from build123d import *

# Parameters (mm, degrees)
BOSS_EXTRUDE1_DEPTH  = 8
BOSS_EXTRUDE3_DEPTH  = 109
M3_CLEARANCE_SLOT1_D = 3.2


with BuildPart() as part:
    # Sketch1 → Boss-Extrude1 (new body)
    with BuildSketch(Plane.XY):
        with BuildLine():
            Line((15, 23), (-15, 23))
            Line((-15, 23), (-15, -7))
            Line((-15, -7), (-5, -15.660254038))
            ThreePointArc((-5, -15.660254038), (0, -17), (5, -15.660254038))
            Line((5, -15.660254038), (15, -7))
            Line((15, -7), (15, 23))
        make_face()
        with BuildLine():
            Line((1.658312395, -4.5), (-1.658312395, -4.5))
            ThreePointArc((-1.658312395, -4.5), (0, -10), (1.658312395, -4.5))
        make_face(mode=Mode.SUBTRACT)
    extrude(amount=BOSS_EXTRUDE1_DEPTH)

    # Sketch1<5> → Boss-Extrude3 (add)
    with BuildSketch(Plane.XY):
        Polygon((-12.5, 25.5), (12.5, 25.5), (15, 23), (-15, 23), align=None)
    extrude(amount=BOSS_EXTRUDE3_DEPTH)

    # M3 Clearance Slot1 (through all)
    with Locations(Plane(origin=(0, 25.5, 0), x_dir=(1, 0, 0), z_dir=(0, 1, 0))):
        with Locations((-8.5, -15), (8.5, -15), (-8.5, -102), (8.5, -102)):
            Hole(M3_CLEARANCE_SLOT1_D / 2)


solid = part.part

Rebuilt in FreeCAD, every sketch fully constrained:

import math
import FreeCAD as App
import Part
import Sketcher

V = App.Vector
Q = App.Units.Quantity


def add_polygon(sketch, points):
    """Adds a closed chain of lines whose ends are joined by coincident constraints."""
    first, n = sketch.GeometryCount, len(points)
    for a, b in zip(points, points[1:] + points[:1]):
        sketch.addGeometry(Part.LineSegment(App.Vector(*a, 0), App.Vector(*b, 0)), False)
    for i in range(n):
        sketch.addConstraint(Sketcher.Constraint("Coincident", first + i, 2, first + (i + 1) % n, 1))

doc = App.newDocument("Part")
body = doc.addObject("PartDesign::Body", "Body")

sketch1 = doc.addObject("Sketcher::SketchObject", "Sketch")
body.addObject(sketch1)
sketch1.AttachmentSupport = (doc.XY_Plane, [""])
sketch1.MapMode = "FlatFace"
sketch1.addGeometry(Part.LineSegment(V(15, 23, 0), V(-15, 23, 0)), False)
sketch1.addGeometry(Part.LineSegment(V(-15, 23, 0), V(-15, -7, 0)), False)
sketch1.addGeometry(Part.LineSegment(V(-15, -7, 0), V(-5, -15.7, 0)), False)
sketch1.addGeometry(Part.ArcOfCircle(Part.Circle(V(0, -7, 0), V(0, 0, 1), 10), math.radians(-120), math.radians(-60)), False)
sketch1.addGeometry(Part.LineSegment(V(5, -15.7, 0), V(15, -7, 0)), False)
sketch1.addGeometry(Part.LineSegment(V(15, -7, 0), V(15, 23, 0)), False)
sketch1.addGeometry(Part.LineSegment(V(-1.7, -4.5, 0), V(1.7, -4.5, 0)), False)
sketch1.addGeometry(Part.ArcOfCircle(Part.Circle(V(0, -7, 0), V(0, 0, 1), 3), math.radians(124), math.radians(416)), False)
sketch1.addConstraint(Sketcher.Constraint("Coincident", 0, 2, 1, 1))
sketch1.addConstraint(Sketcher.Constraint("Coincident", 1, 2, 2, 1))
sketch1.addConstraint(Sketcher.Constraint("Coincident", 2, 2, 3, 1))
sketch1.addConstraint(Sketcher.Constraint("Coincident", 3, 2, 4, 1))
sketch1.addConstraint(Sketcher.Constraint("Coincident", 4, 2, 5, 1))
sketch1.addConstraint(Sketcher.Constraint("Coincident", 5, 2, 0, 1))
sketch1.addConstraint(Sketcher.Constraint("Coincident", 6, 1, 7, 1))
sketch1.addConstraint(Sketcher.Constraint("Coincident", 7, 2, 6, 2))
sketch1.addConstraint(Sketcher.Constraint("Horizontal", 0))
sketch1.addConstraint(Sketcher.Constraint("Vertical", 1))
sketch1.addConstraint(Sketcher.Constraint("Vertical", 5))
sketch1.addConstraint(Sketcher.Constraint("Horizontal", 6))
sketch1.addConstraint(Sketcher.Constraint("Coincident", 7, 3, 3, 3))
sketch1.addConstraint(Sketcher.Constraint("Symmetric", 2, 2, 3, 2, -2))
sketch1.addConstraint(Sketcher.Constraint("Symmetric", 1, 2, 4, 2, -2))
sketch1.addConstraint(Sketcher.Constraint("Horizontal", 7, 3, 1, 2))
sketch1.addConstraint(Sketcher.Constraint("Equal", 0, 1))
sketch1.addConstraint(Sketcher.Constraint("Radius", 3, Q("10 mm")))
sketch1.addConstraint(Sketcher.Constraint("Radius", 7, Q("3 mm")))
sketch1.addConstraint(Sketcher.Constraint("DistanceX", 0, 2, 0, 1, Q("30 mm")))
sketch1.addConstraint(Sketcher.Constraint("DistanceY", 3, 3, -1, 1, Q("7 mm")))
sketch1.addConstraint(Sketcher.Constraint("DistanceX", 2, 2, -1, 1, Q("5 mm")))
sketch1.addConstraint(Sketcher.Constraint("DistanceY", 6, 1, -1, 1, Q("4.5 mm")))
pad1 = doc.addObject("PartDesign::Pad", "Pad")
body.addObject(pad1)
pad1.Profile = sketch1
pad1.Length = 8

sketch2 = doc.addObject("Sketcher::SketchObject", "Sketch001")
body.addObject(sketch2)
sketch2.AttachmentSupport = (doc.XY_Plane, [""])
sketch2.MapMode = "FlatFace"
add_polygon(sketch2, [(12.5, 25.5), (-12.5, 25.5), (-15, 23), (15, 23)])
sketch2.addConstraint(Sketcher.Constraint("Horizontal", 0))
sketch2.addConstraint(Sketcher.Constraint("Horizontal", 2))
sketch2.addConstraint(Sketcher.Constraint("Perpendicular", 1, 3))
sketch2.addConstraint(Sketcher.Constraint("Equal", 1, 3))
sketch2.addConstraint(Sketcher.Constraint("DistanceX", 0, 2, 0, 1, Q("25 mm")))
sketch2.addConstraint(Sketcher.Constraint("DistanceX", 2, 1, 2, 2, Q("30 mm")))
sketch2.addConstraint(Sketcher.Constraint("DistanceX", 1, 2, -1, 1, Q("15 mm")))
sketch2.addConstraint(Sketcher.Constraint("DistanceY", -1, 1, 1, 2, Q("23 mm")))
pad2 = doc.addObject("PartDesign::Pad", "Pad001")
body.addObject(pad2)
pad2.Profile = sketch2
pad2.Length = 109

sketch3 = doc.addObject("Sketcher::SketchObject", "Sketch002")
body.addObject(sketch3)
sketch3.AttachmentSupport = (doc.XZ_Plane, [""])
sketch3.MapMode = "FlatFace"
sketch3.AttachmentOffset = App.Placement(V(0, 0, -25.5), App.Rotation())
sketch3.addGeometry(Part.Circle(V(-8.5, 15, 0), V(0, 0, 1), 1.6), False)
sketch3.addGeometry(Part.Circle(V(8.5, 15, 0), V(0, 0, 1), 1.6), False)
sketch3.addGeometry(Part.Circle(V(-8.5, 102, 0), V(0, 0, 1), 1.6), False)
sketch3.addGeometry(Part.Circle(V(8.5, 102, 0), V(0, 0, 1), 1.6), False)
sketch3.addConstraint(Sketcher.Constraint("Equal", 0, 1))
sketch3.addConstraint(Sketcher.Constraint("Equal", 1, 2))
sketch3.addConstraint(Sketcher.Constraint("Equal", 2, 3))
sketch3.addConstraint(Sketcher.Constraint("Symmetric", 0, 3, 1, 3, -2))
sketch3.addConstraint(Sketcher.Constraint("Symmetric", 2, 3, 3, 3, -2))
sketch3.addConstraint(Sketcher.Constraint("Vertical", 0, 3, 2, 3))
sketch3.addConstraint(Sketcher.Constraint("Diameter", 0, Q("3.2 mm")))
sketch3.addConstraint(Sketcher.Constraint("DistanceY", -1, 1, 0, 3, Q("15 mm")))
sketch3.addConstraint(Sketcher.Constraint("DistanceY", -1, 1, 2, 3, Q("102 mm")))
sketch3.addConstraint(Sketcher.Constraint("DistanceX", 0, 3, 1, 3, Q("17 mm")))
doc.recompute()
hole = doc.addObject("PartDesign::Hole", "Hole")
body.addObject(hole)
hole.Profile = sketch3
hole.ThreadType = "None"
hole.Diameter = 3.2
hole.DepthType = "ThroughAll"
hole.Reversed = True

doc.recompute()
